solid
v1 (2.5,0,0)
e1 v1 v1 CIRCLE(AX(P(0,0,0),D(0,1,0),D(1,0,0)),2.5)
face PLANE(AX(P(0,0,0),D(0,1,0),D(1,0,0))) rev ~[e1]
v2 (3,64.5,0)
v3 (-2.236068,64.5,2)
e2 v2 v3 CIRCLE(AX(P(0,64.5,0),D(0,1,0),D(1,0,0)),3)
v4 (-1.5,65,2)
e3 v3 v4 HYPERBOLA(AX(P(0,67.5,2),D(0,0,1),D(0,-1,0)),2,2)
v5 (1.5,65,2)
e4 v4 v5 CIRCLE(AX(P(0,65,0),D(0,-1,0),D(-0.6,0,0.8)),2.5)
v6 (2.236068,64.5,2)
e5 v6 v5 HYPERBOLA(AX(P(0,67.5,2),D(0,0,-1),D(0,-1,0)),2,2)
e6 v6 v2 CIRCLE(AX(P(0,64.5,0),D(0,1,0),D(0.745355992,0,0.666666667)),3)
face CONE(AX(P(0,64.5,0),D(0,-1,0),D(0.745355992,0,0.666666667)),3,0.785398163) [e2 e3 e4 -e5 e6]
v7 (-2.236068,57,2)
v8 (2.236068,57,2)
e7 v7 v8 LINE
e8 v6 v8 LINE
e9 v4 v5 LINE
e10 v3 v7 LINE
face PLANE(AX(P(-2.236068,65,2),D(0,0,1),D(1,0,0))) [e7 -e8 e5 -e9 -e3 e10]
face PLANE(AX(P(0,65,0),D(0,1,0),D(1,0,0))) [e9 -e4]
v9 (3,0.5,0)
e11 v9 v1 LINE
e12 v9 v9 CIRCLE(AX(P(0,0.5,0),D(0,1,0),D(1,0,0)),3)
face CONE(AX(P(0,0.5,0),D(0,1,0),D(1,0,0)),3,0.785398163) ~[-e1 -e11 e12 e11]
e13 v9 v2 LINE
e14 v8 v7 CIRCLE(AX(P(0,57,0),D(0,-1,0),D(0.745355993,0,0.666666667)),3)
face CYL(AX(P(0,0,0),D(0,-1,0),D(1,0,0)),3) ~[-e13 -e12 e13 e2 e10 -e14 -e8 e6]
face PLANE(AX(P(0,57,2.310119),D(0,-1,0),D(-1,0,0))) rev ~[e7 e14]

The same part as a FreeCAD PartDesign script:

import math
import FreeCAD as App
import Part
import Sketcher
from FreeCAD import Vector
Q = App.Units.Quantity


def edges_at(feature, points):
    """Names of the edges that pass closest to the given points."""
    edges = feature.Shape.Edges
    near = lambda p: min(range(len(edges)), key=lambda i: edges[i].distToShape(Part.Vertex(*p))[0])
    return sorted({f"Edge{near(p) + 1}" for p in points})

doc = App.newDocument("Part")
body = doc.addObject("PartDesign::Body", "Body")

# Sketch on XZ plane
sketch1 = body.newObject("Sketcher::SketchObject", "Sketch")
sketch1.AttachmentSupport = (doc.getObject("XZ_Plane"), [""])
sketch1.MapMode = "FlatFace"
sketch1.addGeometry(Part.Circle(Vector(0, 0, 0), Vector(0, 0, 1), 3), False)
sketch1.addConstraint(Sketcher.Constraint("Coincident", 0, 3, -1, 1))
sketch1.addConstraint(Sketcher.Constraint("Diameter", 0, Q("6 mm")))
pad1 = body.newObject("PartDesign::Pad", "Pad")
pad1.Profile = sketch1
pad1.Length = 65
pad1.Reversed = True

# Sketch on XZ plane
sketch2 = body.newObject("Sketcher::SketchObject", "Sketch001")
sketch2.AttachmentSupport = (doc.getObject("XZ_Plane"), [""])
sketch2.MapMode = "FlatFace"
sketch2.AttachmentOffset = App.Placement(Vector(0, 0, -65), App.Rotation())
sketch2.addGeometry(Part.LineSegment(Vector(2.2, 2, 0), Vector(-2.2, 2, 0)), False)
sketch2.addGeometry(Part.ArcOfCircle(Part.Circle(Vector(0, 0, 0), Vector(0, 0, 1), 3), math.radians(42), math.radians(138)), False)
sketch2.addConstraint(Sketcher.Constraint("Coincident", 0, 1, 1, 1))
sketch2.addConstraint(Sketcher.Constraint("Coincident", 1, 2, 0, 2))
sketch2.addConstraint(Sketcher.Constraint("Horizontal", 0))
sketch2.addConstraint(Sketcher.Constraint("Coincident", 1, 3, -1, 1))
sketch2.addConstraint(Sketcher.Constraint("Radius", 1, Q("3 mm")))
sketch2.addConstraint(Sketcher.Constraint("DistanceY", -1, 1, 0, 1, Q("2 mm")))
pocket1 = body.newObject("PartDesign::Pocket", "Pocket")
pocket1.Profile = sketch2
pocket1.Length = 8
pocket1.Reversed = True
doc.recompute()

chamfer = body.newObject("PartDesign::Chamfer", "Chamfer")
chamfer.Base = (pocket1, edges_at(pocket1, [(-3, 0, 0), (-1.07, 65, -2.803)]))
chamfer.Size = 0.5

doc.recompute()
